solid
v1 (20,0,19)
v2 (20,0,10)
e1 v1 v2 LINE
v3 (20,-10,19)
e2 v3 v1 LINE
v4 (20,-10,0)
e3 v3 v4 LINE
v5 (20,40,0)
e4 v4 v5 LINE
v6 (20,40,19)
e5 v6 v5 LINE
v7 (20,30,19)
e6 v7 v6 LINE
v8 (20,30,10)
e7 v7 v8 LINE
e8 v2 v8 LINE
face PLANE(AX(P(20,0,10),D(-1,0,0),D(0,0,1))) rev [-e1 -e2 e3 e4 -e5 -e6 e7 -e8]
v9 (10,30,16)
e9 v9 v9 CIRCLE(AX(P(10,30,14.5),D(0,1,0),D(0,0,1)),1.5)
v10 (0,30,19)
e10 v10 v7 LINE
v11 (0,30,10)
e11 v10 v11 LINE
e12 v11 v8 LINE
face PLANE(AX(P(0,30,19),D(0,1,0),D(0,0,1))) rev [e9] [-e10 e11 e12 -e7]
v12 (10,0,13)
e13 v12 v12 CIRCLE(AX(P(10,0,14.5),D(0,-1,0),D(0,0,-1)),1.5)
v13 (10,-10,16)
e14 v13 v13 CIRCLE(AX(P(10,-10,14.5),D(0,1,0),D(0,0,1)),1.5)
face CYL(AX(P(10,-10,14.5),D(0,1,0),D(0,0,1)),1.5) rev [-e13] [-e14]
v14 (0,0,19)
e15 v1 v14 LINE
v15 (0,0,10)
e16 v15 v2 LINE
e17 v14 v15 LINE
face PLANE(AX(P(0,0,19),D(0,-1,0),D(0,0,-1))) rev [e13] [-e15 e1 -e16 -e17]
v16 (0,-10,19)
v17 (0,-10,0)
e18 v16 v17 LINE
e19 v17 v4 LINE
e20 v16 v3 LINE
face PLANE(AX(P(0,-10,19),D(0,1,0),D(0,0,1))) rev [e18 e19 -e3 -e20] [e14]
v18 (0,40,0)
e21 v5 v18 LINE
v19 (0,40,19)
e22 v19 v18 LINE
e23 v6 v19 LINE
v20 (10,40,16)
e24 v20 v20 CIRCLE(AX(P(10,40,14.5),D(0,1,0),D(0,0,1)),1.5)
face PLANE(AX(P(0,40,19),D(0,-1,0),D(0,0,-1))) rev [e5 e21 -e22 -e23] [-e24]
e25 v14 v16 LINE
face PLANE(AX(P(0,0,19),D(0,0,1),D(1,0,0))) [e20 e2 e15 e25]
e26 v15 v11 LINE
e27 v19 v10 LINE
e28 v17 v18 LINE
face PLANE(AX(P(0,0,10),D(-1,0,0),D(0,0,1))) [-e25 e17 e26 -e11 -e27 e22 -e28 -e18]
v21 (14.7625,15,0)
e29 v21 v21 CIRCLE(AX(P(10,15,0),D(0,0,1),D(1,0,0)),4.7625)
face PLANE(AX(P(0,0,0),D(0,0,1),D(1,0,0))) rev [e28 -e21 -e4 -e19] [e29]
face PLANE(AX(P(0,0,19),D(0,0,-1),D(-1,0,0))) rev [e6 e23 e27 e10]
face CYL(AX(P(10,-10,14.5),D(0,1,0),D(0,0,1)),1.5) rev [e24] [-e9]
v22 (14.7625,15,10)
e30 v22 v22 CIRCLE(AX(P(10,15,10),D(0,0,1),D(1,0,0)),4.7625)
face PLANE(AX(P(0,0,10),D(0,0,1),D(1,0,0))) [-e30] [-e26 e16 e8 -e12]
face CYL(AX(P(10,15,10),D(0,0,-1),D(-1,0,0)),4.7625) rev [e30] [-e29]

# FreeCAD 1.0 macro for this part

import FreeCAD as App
import Part
import Sketcher

V = App.Vector
Q = App.Units.Quantity

doc = App.newDocument("Part")
body = doc.addObject("PartDesign::Body", "Body")

# Sketch on XY plane
sketch1 = body.newObject("Sketcher::SketchObject", "Sketch")
sketch1.AttachmentSupport = (doc.getObject("XY_Plane"), [""])
sketch1.MapMode = "FlatFace"
sketch1.addGeometry([
    Part.LineSegment(V(0, 30, 0), V(0, 0, 0)),  # 0
    Part.LineSegment(V(0, 0, 0), V(20, 0, 0)),  # 1
    Part.LineSegment(V(20, 0, 0), V(20, 30, 0)),  # 2
    Part.LineSegment(V(20, 30, 0), V(0, 30, 0)),  # 3
    Part.Circle(V(10, 15, 0), V(0, 0, 1), 4.8),  # 4
], False)
sketch1.addConstraint([
    Sketcher.Constraint("Coincident", 0, 2, 1, 1),
    Sketcher.Constraint("Coincident", 1, 2, 2, 1),
    Sketcher.Constraint("Coincident", 2, 2, 3, 1),
    Sketcher.Constraint("Coincident", 3, 2, 0, 1),
    Sketcher.Constraint("Vertical", 0),
    Sketcher.Constraint("Horizontal", 1),
    Sketcher.Constraint("Vertical", 2),
    Sketcher.Constraint("Horizontal", 3),
    Sketcher.Constraint("Coincident", 0, 2, -1, 1),
    Sketcher.Constraint("DistanceX", 1, 1, 1, 2, Q("20 mm")),
    Sketcher.Constraint("DistanceY", 0, 2, 0, 1, Q("30 mm")),
    Sketcher.Constraint("Diameter", 4, Q("9.525 mm")),
    Sketcher.Constraint("DistanceX", -1, 1, 4, 3, Q("10 mm")),
    Sketcher.Constraint("DistanceY", -1, 1, 4, 3, Q("15 mm")),
])
pad1 = body.newObject("PartDesign::Pad", "Pad")
pad1.Profile = sketch1
pad1.Length = 10

# Sketch on XY plane
sketch2 = body.newObject("Sketcher::SketchObject", "Sketch001")
sketch2.AttachmentSupport = (doc.getObject("XY_Plane"), [""])
sketch2.MapMode = "FlatFace"
sketch2.addGeometry([
    Part.LineSegment(V(0, 0, 0), V(0, -10, 0)),  # 0
    Part.LineSegment(V(0, -10, 0), V(20, -10, 0)),  # 1
    Part.LineSegment(V(20, -10, 0), V(20, 0, 0)),  # 2
    Part.LineSegment(V(20, 0, 0), V(0, 0, 0)),  # 3
    Part.LineSegment(V(0, 40, 0), V(0, 30, 0)),  # 4
    Part.LineSegment(V(0, 30, 0), V(20, 30, 0)),  # 5
    Part.LineSegment(V(20, 30, 0), V(20, 40, 0)),  # 6
    Part.LineSegment(V(20, 40, 0), V(0, 40, 0)),  # 7
], False)
sketch2.addConstraint([
    Sketcher.Constraint("Coincident", 0, 2, 1, 1),
    Sketcher.Constraint("Coincident", 1, 2, 2, 1),
    Sketcher.Constraint("Coincident", 2, 2, 3, 1),
    Sketcher.Constraint("Coincident", 3, 2, 0, 1),
    Sketcher.Constraint("Coincident", 4, 2, 5, 1),
    Sketcher.Constraint("Coincident", 5, 2, 6, 1),
    Sketcher.Constraint("Coincident", 6, 2, 7, 1),
    Sketcher.Constraint("Coincident", 7, 2, 4, 1),
    Sketcher.Constraint("Vertical", 0),
    Sketcher.Constraint("Horizontal", 1),
    Sketcher.Constraint("Vertical", 2),
    Sketcher.Constraint("Horizontal", 3),
    Sketcher.Constraint("Vertical", 4),
    Sketcher.Constraint("Horizontal", 5),
    Sketcher.Constraint("Vertical", 6),
    Sketcher.Constraint("Horizontal", 7),
    Sketcher.Constraint("Coincident", 3, 2, -1, 1),
    Sketcher.Constraint("PointOnObject", 4, 2, -2),
    Sketcher.Constraint("Vertical", 2, 2, 5, 2),
    Sketcher.Constraint("Equal", 2, 4),
    Sketcher.Constraint("DistanceX", 1, 1, 1, 2, Q("20 mm")),
    Sketcher.Constraint("DistanceY", 0, 2, 0, 1, Q("10 mm")),
    Sketcher.Constraint("DistanceY", -1, 1, 4, 2, Q("30 mm")),
])
pad2 = body.newObject("PartDesign::Pad", "Pad001")
pad2.Profile = sketch2
pad2.Length = 19

# Sketch on XZ plane
sketch3 = body.newObject("Sketcher::SketchObject", "Sketch002")
sketch3.AttachmentSupport = (doc.getObject("XZ_Plane"), [""])
sketch3.MapMode = "FlatFace"
sketch3.AttachmentOffset = App.Placement(V(0, 0, -40), App.Rotation())
sketch3.addGeometry(Part.Circle(V(10, 14.5, 0), V(0, 0, 1), 1.5), False)
sketch3.addConstraint([
    Sketcher.Constraint("Diameter", 0, Q("3 mm")),
    Sketcher.Constraint("DistanceX", -1, 1, 0, 3, Q("10 mm")),
    Sketcher.Constraint("DistanceY", -1, 1, 0, 3, Q("14.5 mm")),
])
pocket1 = body.newObject("PartDesign::Pocket", "Pocket")
pocket1.Profile = sketch3
pocket1.Type = "ThroughAll"
pocket1.Reversed = True

doc.recompute()
